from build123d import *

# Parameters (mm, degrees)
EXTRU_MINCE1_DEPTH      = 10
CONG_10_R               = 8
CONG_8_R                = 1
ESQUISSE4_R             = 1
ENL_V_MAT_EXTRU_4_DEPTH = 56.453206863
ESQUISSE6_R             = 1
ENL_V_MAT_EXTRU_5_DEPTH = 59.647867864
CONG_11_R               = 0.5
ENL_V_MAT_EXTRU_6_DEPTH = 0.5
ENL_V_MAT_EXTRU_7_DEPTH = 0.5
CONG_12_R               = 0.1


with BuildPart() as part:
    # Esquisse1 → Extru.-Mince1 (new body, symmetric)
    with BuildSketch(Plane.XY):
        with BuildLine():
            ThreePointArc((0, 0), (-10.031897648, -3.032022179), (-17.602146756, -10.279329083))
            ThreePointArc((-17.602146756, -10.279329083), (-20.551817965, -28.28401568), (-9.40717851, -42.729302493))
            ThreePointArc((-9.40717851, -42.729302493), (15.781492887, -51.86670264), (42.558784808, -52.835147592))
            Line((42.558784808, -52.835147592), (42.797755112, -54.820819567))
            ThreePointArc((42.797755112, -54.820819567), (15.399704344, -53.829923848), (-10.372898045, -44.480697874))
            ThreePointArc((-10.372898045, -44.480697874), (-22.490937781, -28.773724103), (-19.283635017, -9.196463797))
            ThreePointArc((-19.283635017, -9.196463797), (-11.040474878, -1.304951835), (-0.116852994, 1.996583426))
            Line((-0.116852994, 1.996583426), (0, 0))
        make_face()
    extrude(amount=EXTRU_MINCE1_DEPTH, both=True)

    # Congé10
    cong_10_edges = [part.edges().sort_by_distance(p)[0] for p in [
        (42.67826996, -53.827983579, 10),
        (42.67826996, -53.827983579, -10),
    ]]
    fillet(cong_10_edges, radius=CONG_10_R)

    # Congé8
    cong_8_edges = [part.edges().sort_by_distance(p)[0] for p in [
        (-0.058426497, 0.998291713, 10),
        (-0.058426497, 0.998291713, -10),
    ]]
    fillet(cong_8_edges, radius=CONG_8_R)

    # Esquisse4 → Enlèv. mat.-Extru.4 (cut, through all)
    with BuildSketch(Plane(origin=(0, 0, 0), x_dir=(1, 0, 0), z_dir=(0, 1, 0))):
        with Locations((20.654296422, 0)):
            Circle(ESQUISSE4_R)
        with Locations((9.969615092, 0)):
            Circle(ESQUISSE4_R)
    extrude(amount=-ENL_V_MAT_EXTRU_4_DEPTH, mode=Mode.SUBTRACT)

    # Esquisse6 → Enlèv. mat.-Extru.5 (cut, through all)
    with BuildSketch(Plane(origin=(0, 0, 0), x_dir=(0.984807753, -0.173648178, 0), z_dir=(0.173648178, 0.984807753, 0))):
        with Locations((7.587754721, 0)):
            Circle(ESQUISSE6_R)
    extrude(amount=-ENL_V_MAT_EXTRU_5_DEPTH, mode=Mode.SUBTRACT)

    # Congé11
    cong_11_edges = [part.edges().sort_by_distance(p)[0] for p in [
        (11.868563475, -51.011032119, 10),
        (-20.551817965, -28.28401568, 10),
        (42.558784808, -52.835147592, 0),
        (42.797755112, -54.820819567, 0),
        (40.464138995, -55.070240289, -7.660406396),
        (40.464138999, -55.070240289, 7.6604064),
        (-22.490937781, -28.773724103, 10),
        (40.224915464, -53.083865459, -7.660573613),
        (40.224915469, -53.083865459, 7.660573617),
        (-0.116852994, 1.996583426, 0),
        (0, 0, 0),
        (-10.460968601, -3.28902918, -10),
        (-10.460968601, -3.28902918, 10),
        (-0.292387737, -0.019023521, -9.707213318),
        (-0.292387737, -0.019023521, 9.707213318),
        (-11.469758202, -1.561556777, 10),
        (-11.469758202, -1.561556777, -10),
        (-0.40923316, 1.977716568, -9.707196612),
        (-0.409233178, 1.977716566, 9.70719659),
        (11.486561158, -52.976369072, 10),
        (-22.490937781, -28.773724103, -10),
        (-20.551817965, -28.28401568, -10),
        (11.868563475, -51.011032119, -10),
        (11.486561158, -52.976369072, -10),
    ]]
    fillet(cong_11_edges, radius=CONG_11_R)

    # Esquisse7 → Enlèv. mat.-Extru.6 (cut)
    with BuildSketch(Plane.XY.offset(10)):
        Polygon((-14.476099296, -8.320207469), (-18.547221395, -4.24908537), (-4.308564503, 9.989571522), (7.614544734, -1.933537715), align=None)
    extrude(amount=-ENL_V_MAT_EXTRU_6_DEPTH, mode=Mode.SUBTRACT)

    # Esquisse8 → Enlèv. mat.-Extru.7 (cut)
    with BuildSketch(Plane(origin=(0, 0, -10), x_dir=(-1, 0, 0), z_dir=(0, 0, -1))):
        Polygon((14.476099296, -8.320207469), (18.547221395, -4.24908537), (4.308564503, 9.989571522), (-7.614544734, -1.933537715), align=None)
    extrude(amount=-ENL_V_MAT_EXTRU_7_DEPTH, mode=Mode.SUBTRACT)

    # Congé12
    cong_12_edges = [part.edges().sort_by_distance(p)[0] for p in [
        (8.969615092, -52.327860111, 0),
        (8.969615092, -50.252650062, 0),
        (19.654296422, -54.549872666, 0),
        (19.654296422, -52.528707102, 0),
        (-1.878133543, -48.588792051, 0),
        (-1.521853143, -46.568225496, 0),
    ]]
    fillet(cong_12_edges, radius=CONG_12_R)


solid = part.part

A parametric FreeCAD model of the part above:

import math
import FreeCAD as App
import Part
import Sketcher
from FreeCAD import Vector
Q = App.Units.Quantity


def edges_at(feature, points):
    """Names of the edges that pass closest to the given points."""
    edges = feature.Shape.Edges
    near = lambda p: min(range(len(edges)), key=lambda i: edges[i].distToShape(Part.Vertex(*p))[0])
    return sorted({f"Edge{near(p) + 1}" for p in points})

doc = App.newDocument("Part")
body = doc.addObject("PartDesign::Body", "Body")

# Sketch on XY plane
sketch1 = body.newObject("Sketcher::SketchObject", "Sketch")
sketch1.AttachmentSupport = (doc.getObject("XY_Plane"), [""])
sketch1.MapMode = "FlatFace"
sketch1.addGeometry(Part.ArcOfCircle(Part.Circle(Vector(1.314596, -22.461564, 0), Vector(0, 0, 1), 22.5), math.radians(93.349499), math.radians(147.218782)), False)
sketch1.addGeometry(Part.LineSegment(Vector(0, 0, 0), Vector(-0.116853, 1.996583, 0)), False)
sketch1.addGeometry(Part.ArcOfCircle(Part.Circle(Vector(1.314596, -22.461564, 0), Vector(0, 0, 1), 24.5), math.radians(93.349499), math.radians(147.218782)), False)
sketch1.addGeometry(Part.ArcOfCircle(Part.Circle(Vector(1.649523, -22.677254, 0), Vector(0, 0, 1), 24.898369), math.radians(147.218782), math.radians(241.127655)), False)
sketch1.addGeometry(Part.ArcOfCircle(Part.Circle(Vector(32.25047, 32.819561, 0), Vector(0, 0, 1), 88.272768), math.radians(-118.872345), math.radians(-83.13761)), False)
sketch1.addGeometry(Part.LineSegment(Vector(42.797755, -54.82082, 0), Vector(42.558785, -52.835148, 0)), False)
sketch1.addGeometry(Part.ArcOfCircle(Part.Circle(Vector(32.25047, 32.819561, 0), Vector(0, 0, 1), 86.272768), math.radians(-118.872345), math.radians(-83.13761)), False)
sketch1.addGeometry(Part.ArcOfCircle(Part.Circle(Vector(1.649523, -22.677254, 0), Vector(0, 0, 1), 22.898369), math.radians(147.218782), math.radians(241.127655)), False)
sketch1.addConstraint(Sketcher.Constraint("Coincident", 0, 1, 1, 1))
sketch1.addConstraint(Sketcher.Constraint("Coincident", 1, 2, 2, 1))
sketch1.addConstraint(Sketcher.Constraint("Tangent", 2, 2, 3, 1))
sketch1.addConstraint(Sketcher.Constraint("Tangent", 3, 2, 4, 1))
sketch1.addConstraint(Sketcher.Constraint("Coincident", 4, 2, 5, 1))
sketch1.addConstraint(Sketcher.Constraint("Coincident", 5, 2, 6, 2))
sketch1.addConstraint(Sketcher.Constraint("Tangent", 6, 1, 7, 2))
sketch1.addConstraint(Sketcher.Constraint("Tangent", 7, 1, 0, 2))
sketch1.addConstraint(Sketcher.Constraint("Coincident", 0, 1, -1, 1))
sketch1.addConstraint(Sketcher.Constraint("Coincident", 2, 3, 0, 3))
sketch1.addConstraint(Sketcher.Constraint("Coincident", 6, 3, 4, 3))
sketch1.addConstraint(Sketcher.Constraint("Coincident", 7, 3, 3, 3))
sketch1.addConstraint(Sketcher.Constraint("Radius", 0, Q("22.5 mm")))
sketch1.addConstraint(Sketcher.Constraint("Radius", 2, Q("24.5 mm")))
sketch1.addConstraint(Sketcher.Constraint("Radius", 3, Q("24.898369 mm")))
sketch1.addConstraint(Sketcher.Constraint("Radius", 4, Q("88.272768 mm")))
sketch1.addConstraint(Sketcher.Constraint("DistanceX", 3, 2, -1, 1, Q("10.372898 mm")))
sketch1.addConstraint(Sketcher.Constraint("DistanceY", 2, 3, 2, 2, Q("13.2651 mm")))
sketch1.addConstraint(Sketcher.Constraint("DistanceX", -1, 1, 4, 3, Q("32.25047 mm")))
sketch1.addConstraint(Sketcher.Constraint("DistanceY", 4, 2, -1, 1, Q("54.82082 mm")))
sketch1.addConstraint(Sketcher.Constraint("DistanceX", 1, 2, 2, 3, Q("1.431449 mm")))
sketch1.addConstraint(Sketcher.Constraint("DistanceX", 5, 2, 4, 2, Q("0.23897 mm")))
pad1 = body.newObject("PartDesign::Pad", "Pad")
pad1.Profile = sketch1
pad1.Length = 20
pad1.Midplane = True
doc.recompute()

fillet = body.newObject("PartDesign::Fillet", "Fillet")
fillet.Base = (pad1, edges_at(pad1, [(42.678, -53.828, 10), (42.678, -53.828, -10)]))
fillet.Radius = 8
doc.recompute()

fillet2 = body.newObject("PartDesign::Fillet", "Fillet001")
fillet2.Base = (fillet, edges_at(fillet, [(-0.058, 0.998, 10), (-0.058, 0.998, -10)]))
fillet2.Radius = 1

# Sketch on XZ plane
sketch2 = body.newObject("Sketcher::SketchObject", "Sketch001")
sketch2.AttachmentSupport = (doc.getObject("XZ_Plane"), [""])
sketch2.MapMode = "FlatFace"
sketch2.addGeometry(Part.Circle(Vector(20.654296, 0, 0), Vector(0, 0, 1), 1), False)
sketch2.addGeometry(Part.Circle(Vector(9.969615, 0, 0), Vector(0, 0, 1), 1), False)
sketch2.addConstraint(Sketcher.Constraint("Equal", 0, 1))
sketch2.addConstraint(Sketcher.Constraint("PointOnObject", 0, 3, -1))
sketch2.addConstraint(Sketcher.Constraint("PointOnObject", 1, 3, -1))
sketch2.addConstraint(Sketcher.Constraint("Diameter", 0, Q("2 mm")))
sketch2.addConstraint(Sketcher.Constraint("DistanceX", 1, 3, 0, 3, Q("10.684681 mm")))
sketch2.addConstraint(Sketcher.Constraint("DistanceX", -1, 1, 0, 3, Q("20.654296 mm")))
pocket1 = body.newObject("PartDesign::Pocket", "Pocket")
pocket1.Profile = sketch2
pocket1.Type = "ThroughAll"
pocket1.Reversed = True

# Sketch on an angled plane
sketch3 = body.newObject("Sketcher::SketchObject", "Sketch002")
sketch3.Placement = App.Placement(Vector(0, 0, 0), App.Rotation(Vector(0.984807753, -0.173648178, 0), Vector(0, 0, -1), Vector(0.173648178, 0.984807753, 0), "ZXY"))
sketch3.addGeometry(Part.Circle(Vector(7.587755, 0, 0), Vector(0, 0, 1), 1), False)
sketch3.addConstraint(Sketcher.Constraint("PointOnObject", 0, 3, -1))
sketch3.addConstraint(Sketcher.Constraint("Diameter", 0, Q("2 mm")))
sketch3.addConstraint(Sketcher.Constraint("DistanceX", -1, 1, 0, 3, Q("7.587755 mm")))
pocket2 = body.newObject("PartDesign::Pocket", "Pocket001")
pocket2.Profile = sketch3
pocket2.Type = "ThroughAll"
doc.recompute()

fillet3 = body.newObject("PartDesign::Fillet", "Fillet002")
fillet3.Base = (pocket2, edges_at(pocket2, [
    (11.869, -51.011, 10),
    (-20.552, -28.284, 10),
    (42.559, -52.835, 0),
    (42.798, -54.821, 0),
    (40.464, -55.07, -7.66),
    (40.464, -55.07, 7.66),
    (-22.491, -28.774, 10),
    (40.225, -53.084, -7.661),
    (40.225, -53.084, 7.661),
    (-0.117, 1.997, 0),
    (0, 0, 0),
    (-10.461, -3.289, -10),
    (-10.461, -3.289, 10),
    (-0.292, -0.019, -9.707),
    (-0.292, -0.019, 9.707),
    (-11.47, -1.562, 10),
    (-11.47, -1.562, -10),
    (-0.409, 1.978, -9.707),
    (-0.409, 1.978, 9.707),
    (11.487, -52.976, 10),
    (-22.491, -28.774, -10),
    (-20.552, -28.284, -10),
    (11.869, -51.011, -10),
    (11.487, -52.976, -10),
]))
fillet3.Radius = 0.5

# Sketch on XY plane
sketch4 = body.newObject("Sketcher::SketchObject", "Sketch003")
sketch4.AttachmentSupport = (doc.getObject("XY_Plane"), [""])
sketch4.MapMode = "FlatFace"
sketch4.AttachmentOffset = App.Placement(Vector(0, 0, 10), App.Rotation())
sketch4.addGeometry(Part.LineSegment(Vector(-18.547221, -4.249085, 0), Vector(-14.476099, -8.320207, 0)), False)
sketch4.addGeometry(Part.LineSegment(Vector(-14.476099, -8.320207, 0), Vector(7.614545, -1.933538, 0)), False)
sketch4.addGeometry(Part.LineSegment(Vector(7.614545, -1.933538, 0), Vector(-4.308565, 9.989572, 0)), False)
sketch4.addGeometry(Part.LineSegment(Vector(-4.308565, 9.989572, 0), Vector(-18.547221, -4.249085, 0)), False)
sketch4.addConstraint(Sketcher.Constraint("Coincident", 0, 2, 1, 1))
sketch4.addConstraint(Sketcher.Constraint("Coincident", 1, 2, 2, 1))
sketch4.addConstraint(Sketcher.Constraint("Coincident", 2, 2, 3, 1))
sketch4.addConstraint(Sketcher.Constraint("Coincident", 3, 2, 0, 1))
sketch4.addConstraint(Sketcher.Constraint("Parallel", 0, 2))
sketch4.addConstraint(Sketcher.Constraint("Perpendicular", 2, 3))
sketch4.addConstraint(Sketcher.Constraint("Angle", 0, Q("-45 deg")))
sketch4.addConstraint(Sketcher.Constraint("Distance", 3, Q("20.136502 mm")))
sketch4.addConstraint(Sketcher.Constraint("DistanceX", 0, 2, -1, 1, Q("14.476099 mm")))
sketch4.addConstraint(Sketcher.Constraint("Distance", 1, Q("22.99535 mm")))
sketch4.addConstraint(Sketcher.Constraint("DistanceY", -1, 1, 2, 2, Q("9.989572 mm")))
sketch4.addConstraint(Sketcher.Constraint("DistanceX", 3, 2, -1, 1, Q("18.547221 mm")))
pocket3 = body.newObject("PartDesign::Pocket", "Pocket002")
pocket3.Profile = sketch4
pocket3.Length = 0.5

# Sketch on XY plane
sketch5 = body.newObject("Sketcher::SketchObject", "Sketch004")
sketch5.AttachmentSupport = (doc.getObject("XY_Plane"), [""])
sketch5.MapMode = "FlatFace"
sketch5.AttachmentOffset = App.Placement(Vector(0, 0, -10), App.Rotation())
sketch5.addGeometry(Part.LineSegment(Vector(-14.476099, -8.320207, 0), Vector(-18.547221, -4.249085, 0)), False)
sketch5.addGeometry(Part.LineSegment(Vector(-18.547221, -4.249085, 0), Vector(-4.308565, 9.989572, 0)), False)
sketch5.addGeometry(Part.LineSegment(Vector(-4.308565, 9.989572, 0), Vector(7.614545, -1.933538, 0)), False)
sketch5.addGeometry(Part.LineSegment(Vector(7.614545, -1.933538, 0), Vector(-14.476099, -8.320207, 0)), False)
sketch5.addConstraint(Sketcher.Constraint("Coincident", 0, 2, 1, 1))
sketch5.addConstraint(Sketcher.Constraint("Coincident", 1, 2, 2, 1))
sketch5.addConstraint(Sketcher.Constraint("Coincident", 2, 2, 3, 1))
sketch5.addConstraint(Sketcher.Constraint("Coincident", 3, 2, 0, 1))
sketch5.addConstraint(Sketcher.Constraint("Perpendicular", 0, 1))
sketch5.addConstraint(Sketcher.Constraint("Perpendicular", 1, 2))
sketch5.addConstraint(Sketcher.Constraint("Angle", 0, Q("135 deg")))
sketch5.addConstraint(Sketcher.Constraint("Distance", 1, Q("20.136502 mm")))
sketch5.addConstraint(Sketcher.Constraint("DistanceX", 3, 2, -1, 1, Q("14.476099 mm")))
sketch5.addConstraint(Sketcher.Constraint("Distance", 3, Q("22.99535 mm")))
sketch5.addConstraint(Sketcher.Constraint("DistanceX", 0, 2, -1, 1, Q("18.547221 mm")))
sketch5.addConstraint(Sketcher.Constraint("DistanceY", -1, 1, 1, 2, Q("9.989572 mm")))
pocket4 = body.newObject("PartDesign::Pocket", "Pocket003")
pocket4.Profile = sketch5
pocket4.Length = 0.5
pocket4.Reversed = True
doc.recompute()

fillet4 = body.newObject("PartDesign::Fillet", "Fillet003")
fillet4.Base = (pocket4, edges_at(pocket4, [
    (8.97, -52.328, 0),
    (8.97, -50.253, 0),
    (19.654, -54.55, 0),
    (19.654, -52.529, 0),
    (-1.878, -48.589, 0),
    (-1.522, -46.568, 0),
]))
fillet4.Radius = 0.1

doc.recompute()
